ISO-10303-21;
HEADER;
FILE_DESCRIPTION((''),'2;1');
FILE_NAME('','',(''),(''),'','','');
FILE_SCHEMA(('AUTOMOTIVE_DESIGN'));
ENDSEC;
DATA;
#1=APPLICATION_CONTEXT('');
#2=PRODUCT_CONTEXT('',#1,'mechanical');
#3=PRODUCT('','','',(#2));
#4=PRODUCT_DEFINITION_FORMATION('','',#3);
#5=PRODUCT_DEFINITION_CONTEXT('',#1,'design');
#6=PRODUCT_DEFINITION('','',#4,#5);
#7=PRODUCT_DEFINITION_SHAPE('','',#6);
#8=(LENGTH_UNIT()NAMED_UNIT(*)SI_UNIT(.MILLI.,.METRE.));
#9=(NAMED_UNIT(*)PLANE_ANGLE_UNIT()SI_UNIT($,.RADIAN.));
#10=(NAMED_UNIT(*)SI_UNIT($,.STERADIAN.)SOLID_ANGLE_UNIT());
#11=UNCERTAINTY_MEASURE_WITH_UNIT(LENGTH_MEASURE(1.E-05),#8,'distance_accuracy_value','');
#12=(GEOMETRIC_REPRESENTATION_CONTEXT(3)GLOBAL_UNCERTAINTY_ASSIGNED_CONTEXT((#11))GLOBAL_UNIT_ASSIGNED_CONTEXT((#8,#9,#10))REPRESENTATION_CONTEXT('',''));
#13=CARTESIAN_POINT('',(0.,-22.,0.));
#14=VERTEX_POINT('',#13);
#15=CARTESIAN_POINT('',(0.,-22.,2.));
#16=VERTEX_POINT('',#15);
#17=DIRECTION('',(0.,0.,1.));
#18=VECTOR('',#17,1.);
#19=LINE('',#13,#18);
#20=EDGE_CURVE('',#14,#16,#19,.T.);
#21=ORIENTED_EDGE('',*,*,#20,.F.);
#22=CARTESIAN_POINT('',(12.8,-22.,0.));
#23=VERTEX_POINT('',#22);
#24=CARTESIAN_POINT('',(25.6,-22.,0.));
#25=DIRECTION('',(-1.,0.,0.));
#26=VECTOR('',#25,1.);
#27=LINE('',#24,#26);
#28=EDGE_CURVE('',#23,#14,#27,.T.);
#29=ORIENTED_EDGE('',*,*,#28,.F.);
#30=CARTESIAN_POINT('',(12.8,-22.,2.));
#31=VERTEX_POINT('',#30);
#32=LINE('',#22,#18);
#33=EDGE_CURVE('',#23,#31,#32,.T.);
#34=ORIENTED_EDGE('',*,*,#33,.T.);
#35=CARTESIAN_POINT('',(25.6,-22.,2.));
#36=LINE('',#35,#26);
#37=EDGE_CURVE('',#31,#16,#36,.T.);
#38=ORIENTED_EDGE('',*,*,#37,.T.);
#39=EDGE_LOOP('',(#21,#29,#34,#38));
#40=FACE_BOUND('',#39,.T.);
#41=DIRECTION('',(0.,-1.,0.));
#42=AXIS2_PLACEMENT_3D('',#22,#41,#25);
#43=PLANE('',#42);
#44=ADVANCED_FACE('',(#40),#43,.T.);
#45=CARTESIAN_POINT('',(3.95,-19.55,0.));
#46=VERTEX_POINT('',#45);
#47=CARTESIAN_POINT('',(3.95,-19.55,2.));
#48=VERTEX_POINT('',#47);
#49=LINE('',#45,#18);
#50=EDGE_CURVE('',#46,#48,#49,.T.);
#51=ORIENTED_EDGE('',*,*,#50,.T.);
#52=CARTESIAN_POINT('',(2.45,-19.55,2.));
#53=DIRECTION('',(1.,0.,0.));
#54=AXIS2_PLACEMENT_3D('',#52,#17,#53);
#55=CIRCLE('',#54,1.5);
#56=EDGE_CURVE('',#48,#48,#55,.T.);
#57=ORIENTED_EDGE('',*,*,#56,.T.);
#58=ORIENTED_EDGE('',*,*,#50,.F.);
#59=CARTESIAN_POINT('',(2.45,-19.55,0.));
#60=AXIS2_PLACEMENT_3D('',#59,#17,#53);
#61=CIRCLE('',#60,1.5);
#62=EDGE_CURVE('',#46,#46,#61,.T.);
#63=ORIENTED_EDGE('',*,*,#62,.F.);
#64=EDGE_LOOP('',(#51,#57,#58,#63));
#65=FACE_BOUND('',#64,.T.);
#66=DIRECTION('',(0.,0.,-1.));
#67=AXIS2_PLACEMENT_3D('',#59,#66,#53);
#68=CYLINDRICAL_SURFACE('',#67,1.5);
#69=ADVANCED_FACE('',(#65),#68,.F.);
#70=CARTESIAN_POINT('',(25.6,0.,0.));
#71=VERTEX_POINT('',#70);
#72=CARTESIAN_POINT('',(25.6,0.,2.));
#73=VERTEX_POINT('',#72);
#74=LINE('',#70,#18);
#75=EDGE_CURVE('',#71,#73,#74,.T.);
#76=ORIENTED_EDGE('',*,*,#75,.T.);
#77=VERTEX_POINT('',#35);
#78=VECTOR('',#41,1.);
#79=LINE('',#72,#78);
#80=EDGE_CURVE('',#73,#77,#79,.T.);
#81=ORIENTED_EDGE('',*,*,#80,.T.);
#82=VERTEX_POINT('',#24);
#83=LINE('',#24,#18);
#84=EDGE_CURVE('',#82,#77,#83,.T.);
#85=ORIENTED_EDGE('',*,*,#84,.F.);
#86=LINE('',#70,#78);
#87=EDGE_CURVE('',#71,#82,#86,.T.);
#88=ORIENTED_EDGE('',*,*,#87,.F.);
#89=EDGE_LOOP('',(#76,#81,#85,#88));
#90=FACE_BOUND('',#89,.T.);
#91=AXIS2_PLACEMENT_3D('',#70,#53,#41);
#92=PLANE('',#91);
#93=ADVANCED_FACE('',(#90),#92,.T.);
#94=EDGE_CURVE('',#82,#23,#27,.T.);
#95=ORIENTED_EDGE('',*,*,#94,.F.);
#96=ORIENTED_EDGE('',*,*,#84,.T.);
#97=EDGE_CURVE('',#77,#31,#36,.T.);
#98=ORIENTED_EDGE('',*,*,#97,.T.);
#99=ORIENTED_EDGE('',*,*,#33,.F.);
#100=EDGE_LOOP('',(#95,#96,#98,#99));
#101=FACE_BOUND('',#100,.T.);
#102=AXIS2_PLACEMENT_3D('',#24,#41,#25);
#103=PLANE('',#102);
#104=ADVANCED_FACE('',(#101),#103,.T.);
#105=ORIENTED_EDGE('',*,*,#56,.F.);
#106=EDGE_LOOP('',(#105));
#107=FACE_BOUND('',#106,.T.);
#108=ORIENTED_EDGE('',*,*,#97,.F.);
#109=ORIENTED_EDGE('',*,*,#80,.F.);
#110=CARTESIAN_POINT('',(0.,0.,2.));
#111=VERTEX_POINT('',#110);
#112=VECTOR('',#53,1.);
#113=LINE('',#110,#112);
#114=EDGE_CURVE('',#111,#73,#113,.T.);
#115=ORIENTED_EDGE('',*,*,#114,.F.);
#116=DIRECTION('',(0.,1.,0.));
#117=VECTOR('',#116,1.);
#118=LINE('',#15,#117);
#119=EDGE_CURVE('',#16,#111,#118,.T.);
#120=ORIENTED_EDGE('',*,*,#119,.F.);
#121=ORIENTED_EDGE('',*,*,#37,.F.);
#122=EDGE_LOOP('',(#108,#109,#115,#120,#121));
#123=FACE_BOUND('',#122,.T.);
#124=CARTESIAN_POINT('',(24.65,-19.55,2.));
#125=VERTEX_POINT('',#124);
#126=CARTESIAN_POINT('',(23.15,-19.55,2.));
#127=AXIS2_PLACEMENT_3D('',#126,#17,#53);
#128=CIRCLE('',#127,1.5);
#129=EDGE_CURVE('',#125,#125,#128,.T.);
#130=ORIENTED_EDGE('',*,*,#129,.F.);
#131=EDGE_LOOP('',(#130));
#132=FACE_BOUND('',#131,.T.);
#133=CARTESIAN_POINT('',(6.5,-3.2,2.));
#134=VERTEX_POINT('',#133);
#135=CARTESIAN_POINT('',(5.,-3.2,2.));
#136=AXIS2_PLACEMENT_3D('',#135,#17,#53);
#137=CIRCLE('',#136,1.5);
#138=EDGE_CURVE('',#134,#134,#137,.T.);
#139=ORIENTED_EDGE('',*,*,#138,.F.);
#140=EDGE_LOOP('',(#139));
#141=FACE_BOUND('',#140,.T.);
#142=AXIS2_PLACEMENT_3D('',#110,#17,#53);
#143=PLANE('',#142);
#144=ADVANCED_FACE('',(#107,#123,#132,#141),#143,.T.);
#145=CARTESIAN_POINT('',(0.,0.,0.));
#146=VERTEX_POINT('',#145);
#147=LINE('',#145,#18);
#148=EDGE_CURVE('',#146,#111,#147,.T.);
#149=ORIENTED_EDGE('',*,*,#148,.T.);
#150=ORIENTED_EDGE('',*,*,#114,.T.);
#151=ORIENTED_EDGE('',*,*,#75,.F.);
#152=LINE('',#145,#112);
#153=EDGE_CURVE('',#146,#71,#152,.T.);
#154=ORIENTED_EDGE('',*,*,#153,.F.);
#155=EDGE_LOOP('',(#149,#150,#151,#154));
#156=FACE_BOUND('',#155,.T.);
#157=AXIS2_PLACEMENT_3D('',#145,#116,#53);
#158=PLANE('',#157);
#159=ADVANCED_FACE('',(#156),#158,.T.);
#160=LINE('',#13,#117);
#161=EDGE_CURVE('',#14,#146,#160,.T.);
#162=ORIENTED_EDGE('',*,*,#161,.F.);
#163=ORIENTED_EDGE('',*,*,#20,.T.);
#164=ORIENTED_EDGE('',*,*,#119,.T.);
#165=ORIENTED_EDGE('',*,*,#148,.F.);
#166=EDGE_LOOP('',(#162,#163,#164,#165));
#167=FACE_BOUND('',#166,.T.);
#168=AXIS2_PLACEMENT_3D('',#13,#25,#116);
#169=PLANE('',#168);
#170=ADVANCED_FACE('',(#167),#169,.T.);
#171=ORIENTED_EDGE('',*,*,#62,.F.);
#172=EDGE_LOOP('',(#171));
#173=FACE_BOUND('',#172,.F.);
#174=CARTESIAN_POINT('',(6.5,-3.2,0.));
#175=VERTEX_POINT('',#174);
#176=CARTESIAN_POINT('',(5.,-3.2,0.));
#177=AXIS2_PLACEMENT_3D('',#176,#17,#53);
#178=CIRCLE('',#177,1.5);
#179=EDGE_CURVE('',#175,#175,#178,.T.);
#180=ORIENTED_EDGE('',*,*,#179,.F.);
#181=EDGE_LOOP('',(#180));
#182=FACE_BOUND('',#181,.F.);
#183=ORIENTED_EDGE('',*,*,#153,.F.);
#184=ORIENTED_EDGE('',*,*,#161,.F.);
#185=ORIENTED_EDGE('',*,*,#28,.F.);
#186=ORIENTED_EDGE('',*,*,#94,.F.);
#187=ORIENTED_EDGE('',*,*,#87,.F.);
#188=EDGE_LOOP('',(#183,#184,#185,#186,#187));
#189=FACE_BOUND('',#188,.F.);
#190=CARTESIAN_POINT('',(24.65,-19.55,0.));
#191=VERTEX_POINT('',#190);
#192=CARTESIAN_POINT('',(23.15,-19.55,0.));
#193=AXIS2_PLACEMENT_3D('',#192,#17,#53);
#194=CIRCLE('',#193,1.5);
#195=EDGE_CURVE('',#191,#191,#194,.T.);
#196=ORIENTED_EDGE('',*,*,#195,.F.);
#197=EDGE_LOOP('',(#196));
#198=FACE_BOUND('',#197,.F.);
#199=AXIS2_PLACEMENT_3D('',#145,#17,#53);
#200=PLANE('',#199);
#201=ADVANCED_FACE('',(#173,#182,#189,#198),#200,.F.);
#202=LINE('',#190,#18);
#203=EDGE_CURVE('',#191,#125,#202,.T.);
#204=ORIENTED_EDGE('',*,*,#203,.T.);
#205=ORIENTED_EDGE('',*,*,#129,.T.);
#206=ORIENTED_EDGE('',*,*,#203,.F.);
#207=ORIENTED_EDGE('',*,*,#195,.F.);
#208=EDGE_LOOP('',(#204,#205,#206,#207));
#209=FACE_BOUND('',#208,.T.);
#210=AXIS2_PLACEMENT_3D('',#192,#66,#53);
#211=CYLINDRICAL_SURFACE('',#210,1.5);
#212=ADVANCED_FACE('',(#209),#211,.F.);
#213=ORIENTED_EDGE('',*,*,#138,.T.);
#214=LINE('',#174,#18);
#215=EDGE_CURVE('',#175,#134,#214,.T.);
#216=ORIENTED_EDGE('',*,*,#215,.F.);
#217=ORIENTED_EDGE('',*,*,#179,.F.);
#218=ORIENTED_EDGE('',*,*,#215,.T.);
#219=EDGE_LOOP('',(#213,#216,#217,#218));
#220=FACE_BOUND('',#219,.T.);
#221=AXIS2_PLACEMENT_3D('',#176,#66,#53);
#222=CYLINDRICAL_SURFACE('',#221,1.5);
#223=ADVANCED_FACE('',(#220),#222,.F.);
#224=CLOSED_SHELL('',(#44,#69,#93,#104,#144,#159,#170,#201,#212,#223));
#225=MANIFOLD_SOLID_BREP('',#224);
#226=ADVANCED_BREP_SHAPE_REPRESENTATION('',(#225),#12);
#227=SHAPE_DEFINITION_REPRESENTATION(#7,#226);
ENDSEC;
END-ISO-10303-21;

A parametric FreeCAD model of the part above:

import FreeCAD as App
import Part
import Sketcher

V = App.Vector
Q = App.Units.Quantity

doc = App.newDocument("Part")
params = doc.addObject("Spreadsheet::Sheet", "Params")
for row, (alias, value) in enumerate([
    ("sketch1_diameter", "3 mm"),
    ("sketch1_height", "22 mm"),
    ("sketch1_width", "25.6 mm"),
    ("pad1_length", "2 mm"),
], start=1):
    params.set(f"A{row}", alias)
    params.set(f"B{row}", "=" + value)
    params.setAlias(f"B{row}", alias)

body = doc.addObject("PartDesign::Body", "Body")

# Sketch on XY plane
sketch1 = doc.addObject("Sketcher::SketchObject", "Sketch")
body.addObject(sketch1)
sketch1.AttachmentSupport = (doc.XY_Plane, [""])
sketch1.MapMode = "FlatFace"
sketch1.addGeometry(Part.LineSegment(V(25.6, 0, 0), V(0, 0, 0)), False)
sketch1.addGeometry(Part.LineSegment(V(0, 0, 0), V(0, -22, 0)), False)
sketch1.addGeometry(Part.LineSegment(V(0, -22, 0), V(25.6, -22, 0)), False)
sketch1.addGeometry(Part.LineSegment(V(25.6, -22, 0), V(25.6, 0, 0)), False)
sketch1.addGeometry(Part.Circle(V(2.5, -19.6, 0), V(0, 0, 1), 1.5), False)
sketch1.addGeometry(Part.Circle(V(23.1, -19.6, 0), V(0, 0, 1), 1.5), False)
sketch1.addGeometry(Part.Circle(V(5, -3.2, 0), V(0, 0, 1), 1.5), False)
sketch1.addConstraint(Sketcher.Constraint("Coincident", 0, 2, 1, 1))
sketch1.addConstraint(Sketcher.Constraint("Coincident", 1, 2, 2, 1))
sketch1.addConstraint(Sketcher.Constraint("Coincident", 2, 2, 3, 1))
sketch1.addConstraint(Sketcher.Constraint("Coincident", 3, 2, 0, 1))
sketch1.addConstraint(Sketcher.Constraint("Horizontal", 0))
sketch1.addConstraint(Sketcher.Constraint("Vertical", 1))
sketch1.addConstraint(Sketcher.Constraint("Horizontal", 2))
sketch1.addConstraint(Sketcher.Constraint("Vertical", 3))
sketch1.addConstraint(Sketcher.Constraint("Coincident", 0, 2, -1, 1))
sketch1.addConstraint(Sketcher.Constraint("Equal", 4, 5))
sketch1.addConstraint(Sketcher.Constraint("Equal", 5, 6))
sketch1.addConstraint(Sketcher.Constraint("Horizontal", 4, 3, 5, 3))
sketch1.addConstraint(Sketcher.Constraint("Diameter", 4, Q("3 mm")))
sketch1.addConstraint(Sketcher.Constraint("DistanceY", 1, 2, 1, 1, Q("22 mm")))
sketch1.addConstraint(Sketcher.Constraint("DistanceX", 0, 2, 0, 1, Q("25.6 mm")))
sketch1.addConstraint(Sketcher.Constraint("DistanceY", 6, 3, -1, 1, Q("3.2 mm")))
sketch1.addConstraint(Sketcher.Constraint("DistanceX", -1, 1, 4, 3, Q("2.45 mm")))
sketch1.addConstraint(Sketcher.Constraint("DistanceY", 1, 2, 4, 3, Q("2.45 mm")))
sketch1.addConstraint(Sketcher.Constraint("DistanceX", 5, 3, 2, 2, Q("2.45 mm")))
sketch1.addConstraint(Sketcher.Constraint("DistanceX", -1, 1, 6, 3, Q("5 mm")))
sketch1.setExpression("Constraints[12]", "Params.sketch1_diameter")
sketch1.setExpression("Constraints[13]", "Params.sketch1_height")
sketch1.setExpression("Constraints[14]", "Params.sketch1_width")
pad1 = doc.addObject("PartDesign::Pad", "Pad")
body.addObject(pad1)
pad1.Profile = sketch1
pad1.setExpression("Length", "Params.pad1_length")

doc.recompute()
